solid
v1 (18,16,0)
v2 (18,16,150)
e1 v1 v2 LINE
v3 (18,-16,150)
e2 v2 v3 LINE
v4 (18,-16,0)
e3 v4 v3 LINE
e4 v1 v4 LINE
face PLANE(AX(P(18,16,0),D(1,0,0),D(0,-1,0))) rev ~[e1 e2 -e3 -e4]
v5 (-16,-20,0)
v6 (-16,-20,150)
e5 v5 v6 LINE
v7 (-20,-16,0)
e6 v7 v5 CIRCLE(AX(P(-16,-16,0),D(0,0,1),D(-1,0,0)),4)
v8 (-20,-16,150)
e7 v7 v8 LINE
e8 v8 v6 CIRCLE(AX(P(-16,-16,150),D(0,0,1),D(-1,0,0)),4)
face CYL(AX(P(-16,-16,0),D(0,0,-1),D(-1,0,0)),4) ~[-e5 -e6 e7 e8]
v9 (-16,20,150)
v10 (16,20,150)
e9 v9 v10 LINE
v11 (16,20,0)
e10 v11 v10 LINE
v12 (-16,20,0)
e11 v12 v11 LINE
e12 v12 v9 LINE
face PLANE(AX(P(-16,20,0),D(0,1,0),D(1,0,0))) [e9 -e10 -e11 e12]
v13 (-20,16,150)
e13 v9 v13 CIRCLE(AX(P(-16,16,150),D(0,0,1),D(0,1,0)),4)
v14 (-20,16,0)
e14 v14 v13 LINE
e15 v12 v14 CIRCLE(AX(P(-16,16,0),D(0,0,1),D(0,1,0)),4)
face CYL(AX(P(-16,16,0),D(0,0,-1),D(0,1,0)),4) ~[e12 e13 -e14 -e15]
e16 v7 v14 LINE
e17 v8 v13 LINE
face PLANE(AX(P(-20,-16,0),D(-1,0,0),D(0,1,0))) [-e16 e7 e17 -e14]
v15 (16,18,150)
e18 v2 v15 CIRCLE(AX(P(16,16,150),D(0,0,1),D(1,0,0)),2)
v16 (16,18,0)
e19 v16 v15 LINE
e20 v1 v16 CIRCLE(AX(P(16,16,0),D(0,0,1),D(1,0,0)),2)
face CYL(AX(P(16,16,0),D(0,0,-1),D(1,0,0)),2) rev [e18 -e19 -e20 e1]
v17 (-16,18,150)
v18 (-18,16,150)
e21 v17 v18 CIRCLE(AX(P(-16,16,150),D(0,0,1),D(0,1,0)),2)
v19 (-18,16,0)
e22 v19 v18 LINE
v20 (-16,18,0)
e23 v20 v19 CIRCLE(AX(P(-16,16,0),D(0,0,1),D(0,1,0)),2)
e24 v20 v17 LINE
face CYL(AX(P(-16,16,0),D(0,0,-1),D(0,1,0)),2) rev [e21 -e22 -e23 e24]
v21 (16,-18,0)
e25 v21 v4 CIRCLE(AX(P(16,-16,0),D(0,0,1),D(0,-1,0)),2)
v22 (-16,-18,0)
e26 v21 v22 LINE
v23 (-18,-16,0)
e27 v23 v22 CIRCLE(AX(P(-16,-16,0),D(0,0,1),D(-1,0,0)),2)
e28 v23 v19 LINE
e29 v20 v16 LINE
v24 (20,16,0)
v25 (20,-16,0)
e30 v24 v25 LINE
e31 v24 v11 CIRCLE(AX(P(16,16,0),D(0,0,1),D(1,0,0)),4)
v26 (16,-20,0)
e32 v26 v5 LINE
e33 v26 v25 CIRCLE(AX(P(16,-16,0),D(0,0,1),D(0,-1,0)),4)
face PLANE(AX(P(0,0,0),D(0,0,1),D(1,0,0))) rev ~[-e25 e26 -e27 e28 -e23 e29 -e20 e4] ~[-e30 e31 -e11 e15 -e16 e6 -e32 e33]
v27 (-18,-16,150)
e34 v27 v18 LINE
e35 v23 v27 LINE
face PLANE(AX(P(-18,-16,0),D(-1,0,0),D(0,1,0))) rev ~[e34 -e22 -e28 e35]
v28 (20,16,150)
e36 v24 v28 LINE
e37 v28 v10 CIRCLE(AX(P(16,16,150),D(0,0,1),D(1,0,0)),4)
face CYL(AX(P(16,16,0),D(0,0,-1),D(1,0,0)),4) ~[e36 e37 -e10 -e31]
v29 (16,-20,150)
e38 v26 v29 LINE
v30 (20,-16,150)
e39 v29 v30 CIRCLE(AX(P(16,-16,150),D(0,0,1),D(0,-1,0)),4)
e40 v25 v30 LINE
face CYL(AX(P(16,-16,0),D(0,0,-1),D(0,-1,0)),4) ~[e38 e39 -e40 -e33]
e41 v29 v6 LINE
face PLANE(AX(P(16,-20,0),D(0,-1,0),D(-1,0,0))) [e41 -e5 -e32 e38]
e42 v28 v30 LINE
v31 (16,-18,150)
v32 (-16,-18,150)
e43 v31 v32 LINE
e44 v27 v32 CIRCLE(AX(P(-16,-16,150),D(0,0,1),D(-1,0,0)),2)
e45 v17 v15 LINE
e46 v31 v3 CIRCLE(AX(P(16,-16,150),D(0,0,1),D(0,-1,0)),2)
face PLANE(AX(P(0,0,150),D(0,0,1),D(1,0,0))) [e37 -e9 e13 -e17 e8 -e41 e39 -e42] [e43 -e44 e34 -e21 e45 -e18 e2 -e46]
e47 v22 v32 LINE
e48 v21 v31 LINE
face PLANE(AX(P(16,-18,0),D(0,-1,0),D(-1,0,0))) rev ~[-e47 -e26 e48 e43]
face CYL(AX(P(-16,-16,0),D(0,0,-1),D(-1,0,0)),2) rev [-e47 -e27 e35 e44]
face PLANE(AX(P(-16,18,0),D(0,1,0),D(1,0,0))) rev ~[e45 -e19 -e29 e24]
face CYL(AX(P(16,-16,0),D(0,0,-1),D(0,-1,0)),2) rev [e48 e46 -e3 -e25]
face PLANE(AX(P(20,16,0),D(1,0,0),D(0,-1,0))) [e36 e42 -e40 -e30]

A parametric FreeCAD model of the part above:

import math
import FreeCAD as App
import Part
import Sketcher

V = App.Vector

doc = App.newDocument("Part")
body = doc.addObject("PartDesign::Body", "Body")

# Sketch on XY plane
sketch1 = body.newObject("Sketcher::SketchObject", "Sketch")
sketch1.AttachmentSupport = (doc.getObject("XY_Plane"), [""])
sketch1.MapMode = "FlatFace"
sketch1.addGeometry([
    Part.LineSegment(V(-20, 16, 0), V(-20, -16, 0)),  # 0
    Part.ArcOfCircle(Part.Circle(V(-16, -16, 0), V(0, 0, 1), 4), math.radians(180), math.radians(270)),  # 1
    Part.LineSegment(V(-16, -20, 0), V(16, -20, 0)),  # 2
    Part.ArcOfCircle(Part.Circle(V(16, -16, 0), V(0, 0, 1), 4), math.radians(-90), math.radians(0)),  # 3
    Part.LineSegment(V(20, -16, 0), V(20, 16, 0)),  # 4
    Part.ArcOfCircle(Part.Circle(V(16, 16, 0), V(0, 0, 1), 4), math.radians(0), math.radians(90)),  # 5
    Part.LineSegment(V(16, 20, 0), V(-16, 20, 0)),  # 6
    Part.ArcOfCircle(Part.Circle(V(-16, 16, 0), V(0, 0, 1), 4), math.radians(90), math.radians(180)),  # 7
    Part.ArcOfCircle(Part.Circle(V(-16, 16, 0), V(0, 0, 1), 2), math.radians(90), math.radians(180)),  # 8
    Part.LineSegment(V(-16, 18, 0), V(16, 18, 0)),  # 9
    Part.ArcOfCircle(Part.Circle(V(16, 16, 0), V(0, 0, 1), 2), math.radians(0), math.radians(90)),  # 10
    Part.LineSegment(V(18, 16, 0), V(18, -16, 0)),  # 11
    Part.ArcOfCircle(Part.Circle(V(16, -16, 0), V(0, 0, 1), 2), math.radians(-90), math.radians(0)),  # 12
    Part.LineSegment(V(16, -18, 0), V(-16, -18, 0)),  # 13
    Part.ArcOfCircle(Part.Circle(V(-16, -16, 0), V(0, 0, 1), 2), math.radians(180), math.radians(270)),  # 14
    Part.LineSegment(V(-18, -16, 0), V(-18, 16, 0)),  # 15
], False)
sketch1.addConstraint([
    Sketcher.Constraint("Tangent", 0, 2, 1, 1),
    Sketcher.Constraint("Tangent", 1, 2, 2, 1),
    Sketcher.Constraint("Tangent", 2, 2, 3, 1),
    Sketcher.Constraint("Tangent", 3, 2, 4, 1),
    Sketcher.Constraint("Tangent", 4, 2, 5, 1),
    Sketcher.Constraint("Tangent", 5, 2, 6, 1),
    Sketcher.Constraint("Tangent", 6, 2, 7, 1),
    Sketcher.Constraint("Tangent", 7, 2, 0, 1),
    Sketcher.Constraint("Tangent", 8, 1, 9, 1),
    Sketcher.Constraint("Tangent", 9, 2, 10, 2),
    Sketcher.Constraint("Tangent", 10, 1, 11, 1),
    Sketcher.Constraint("Tangent", 11, 2, 12, 2),
    Sketcher.Constraint("Tangent", 12, 1, 13, 1),
    Sketcher.Constraint("Tangent", 13, 2, 14, 2),
    Sketcher.Constraint("Tangent", 14, 1, 15, 1),
    Sketcher.Constraint("Tangent", 15, 2, 8, 2),
    Sketcher.Constraint("Vertical", 0),
    Sketcher.Constraint("Horizontal", 2),
    Sketcher.Constraint("Vertical", 4),
    Sketcher.Constraint("Horizontal", 6),
    Sketcher.Constraint("Horizontal", 9),
    Sketcher.Constraint("Vertical", 11),
    Sketcher.Constraint("Horizontal", 13),
    Sketcher.Constraint("Vertical", 15),
    Sketcher.Constraint("Coincident", 8, 3, 7, 3),
    Sketcher.Constraint("Coincident", 10, 3, 5, 3),
    Sketcher.Constraint("Coincident", 12, 3, 3, 3),
    Sketcher.Constraint("Equal", 1, 3),
    Sketcher.Constraint("Equal", 3, 5),
    Sketcher.Constraint("Equal", 5, 7),
    Sketcher.Constraint("Equal", 12, 14),
    Sketcher.Constraint("Symmetric", 1, 3, 5, 3, -1, 1),
    Sketcher.Constraint("Equal", 13, 0),
    Sketcher.Constraint("Radius", 1, 4.0),
    Sketcher.Constraint("Radius", 8, 2.0),
    Sketcher.Constraint("DistanceX", 0, 2, -1, 1, 20.0),
])
pad1 = body.newObject("PartDesign::Pad", "Pad")
pad1.Profile = sketch1
pad1.Length = 150

doc.recompute()
